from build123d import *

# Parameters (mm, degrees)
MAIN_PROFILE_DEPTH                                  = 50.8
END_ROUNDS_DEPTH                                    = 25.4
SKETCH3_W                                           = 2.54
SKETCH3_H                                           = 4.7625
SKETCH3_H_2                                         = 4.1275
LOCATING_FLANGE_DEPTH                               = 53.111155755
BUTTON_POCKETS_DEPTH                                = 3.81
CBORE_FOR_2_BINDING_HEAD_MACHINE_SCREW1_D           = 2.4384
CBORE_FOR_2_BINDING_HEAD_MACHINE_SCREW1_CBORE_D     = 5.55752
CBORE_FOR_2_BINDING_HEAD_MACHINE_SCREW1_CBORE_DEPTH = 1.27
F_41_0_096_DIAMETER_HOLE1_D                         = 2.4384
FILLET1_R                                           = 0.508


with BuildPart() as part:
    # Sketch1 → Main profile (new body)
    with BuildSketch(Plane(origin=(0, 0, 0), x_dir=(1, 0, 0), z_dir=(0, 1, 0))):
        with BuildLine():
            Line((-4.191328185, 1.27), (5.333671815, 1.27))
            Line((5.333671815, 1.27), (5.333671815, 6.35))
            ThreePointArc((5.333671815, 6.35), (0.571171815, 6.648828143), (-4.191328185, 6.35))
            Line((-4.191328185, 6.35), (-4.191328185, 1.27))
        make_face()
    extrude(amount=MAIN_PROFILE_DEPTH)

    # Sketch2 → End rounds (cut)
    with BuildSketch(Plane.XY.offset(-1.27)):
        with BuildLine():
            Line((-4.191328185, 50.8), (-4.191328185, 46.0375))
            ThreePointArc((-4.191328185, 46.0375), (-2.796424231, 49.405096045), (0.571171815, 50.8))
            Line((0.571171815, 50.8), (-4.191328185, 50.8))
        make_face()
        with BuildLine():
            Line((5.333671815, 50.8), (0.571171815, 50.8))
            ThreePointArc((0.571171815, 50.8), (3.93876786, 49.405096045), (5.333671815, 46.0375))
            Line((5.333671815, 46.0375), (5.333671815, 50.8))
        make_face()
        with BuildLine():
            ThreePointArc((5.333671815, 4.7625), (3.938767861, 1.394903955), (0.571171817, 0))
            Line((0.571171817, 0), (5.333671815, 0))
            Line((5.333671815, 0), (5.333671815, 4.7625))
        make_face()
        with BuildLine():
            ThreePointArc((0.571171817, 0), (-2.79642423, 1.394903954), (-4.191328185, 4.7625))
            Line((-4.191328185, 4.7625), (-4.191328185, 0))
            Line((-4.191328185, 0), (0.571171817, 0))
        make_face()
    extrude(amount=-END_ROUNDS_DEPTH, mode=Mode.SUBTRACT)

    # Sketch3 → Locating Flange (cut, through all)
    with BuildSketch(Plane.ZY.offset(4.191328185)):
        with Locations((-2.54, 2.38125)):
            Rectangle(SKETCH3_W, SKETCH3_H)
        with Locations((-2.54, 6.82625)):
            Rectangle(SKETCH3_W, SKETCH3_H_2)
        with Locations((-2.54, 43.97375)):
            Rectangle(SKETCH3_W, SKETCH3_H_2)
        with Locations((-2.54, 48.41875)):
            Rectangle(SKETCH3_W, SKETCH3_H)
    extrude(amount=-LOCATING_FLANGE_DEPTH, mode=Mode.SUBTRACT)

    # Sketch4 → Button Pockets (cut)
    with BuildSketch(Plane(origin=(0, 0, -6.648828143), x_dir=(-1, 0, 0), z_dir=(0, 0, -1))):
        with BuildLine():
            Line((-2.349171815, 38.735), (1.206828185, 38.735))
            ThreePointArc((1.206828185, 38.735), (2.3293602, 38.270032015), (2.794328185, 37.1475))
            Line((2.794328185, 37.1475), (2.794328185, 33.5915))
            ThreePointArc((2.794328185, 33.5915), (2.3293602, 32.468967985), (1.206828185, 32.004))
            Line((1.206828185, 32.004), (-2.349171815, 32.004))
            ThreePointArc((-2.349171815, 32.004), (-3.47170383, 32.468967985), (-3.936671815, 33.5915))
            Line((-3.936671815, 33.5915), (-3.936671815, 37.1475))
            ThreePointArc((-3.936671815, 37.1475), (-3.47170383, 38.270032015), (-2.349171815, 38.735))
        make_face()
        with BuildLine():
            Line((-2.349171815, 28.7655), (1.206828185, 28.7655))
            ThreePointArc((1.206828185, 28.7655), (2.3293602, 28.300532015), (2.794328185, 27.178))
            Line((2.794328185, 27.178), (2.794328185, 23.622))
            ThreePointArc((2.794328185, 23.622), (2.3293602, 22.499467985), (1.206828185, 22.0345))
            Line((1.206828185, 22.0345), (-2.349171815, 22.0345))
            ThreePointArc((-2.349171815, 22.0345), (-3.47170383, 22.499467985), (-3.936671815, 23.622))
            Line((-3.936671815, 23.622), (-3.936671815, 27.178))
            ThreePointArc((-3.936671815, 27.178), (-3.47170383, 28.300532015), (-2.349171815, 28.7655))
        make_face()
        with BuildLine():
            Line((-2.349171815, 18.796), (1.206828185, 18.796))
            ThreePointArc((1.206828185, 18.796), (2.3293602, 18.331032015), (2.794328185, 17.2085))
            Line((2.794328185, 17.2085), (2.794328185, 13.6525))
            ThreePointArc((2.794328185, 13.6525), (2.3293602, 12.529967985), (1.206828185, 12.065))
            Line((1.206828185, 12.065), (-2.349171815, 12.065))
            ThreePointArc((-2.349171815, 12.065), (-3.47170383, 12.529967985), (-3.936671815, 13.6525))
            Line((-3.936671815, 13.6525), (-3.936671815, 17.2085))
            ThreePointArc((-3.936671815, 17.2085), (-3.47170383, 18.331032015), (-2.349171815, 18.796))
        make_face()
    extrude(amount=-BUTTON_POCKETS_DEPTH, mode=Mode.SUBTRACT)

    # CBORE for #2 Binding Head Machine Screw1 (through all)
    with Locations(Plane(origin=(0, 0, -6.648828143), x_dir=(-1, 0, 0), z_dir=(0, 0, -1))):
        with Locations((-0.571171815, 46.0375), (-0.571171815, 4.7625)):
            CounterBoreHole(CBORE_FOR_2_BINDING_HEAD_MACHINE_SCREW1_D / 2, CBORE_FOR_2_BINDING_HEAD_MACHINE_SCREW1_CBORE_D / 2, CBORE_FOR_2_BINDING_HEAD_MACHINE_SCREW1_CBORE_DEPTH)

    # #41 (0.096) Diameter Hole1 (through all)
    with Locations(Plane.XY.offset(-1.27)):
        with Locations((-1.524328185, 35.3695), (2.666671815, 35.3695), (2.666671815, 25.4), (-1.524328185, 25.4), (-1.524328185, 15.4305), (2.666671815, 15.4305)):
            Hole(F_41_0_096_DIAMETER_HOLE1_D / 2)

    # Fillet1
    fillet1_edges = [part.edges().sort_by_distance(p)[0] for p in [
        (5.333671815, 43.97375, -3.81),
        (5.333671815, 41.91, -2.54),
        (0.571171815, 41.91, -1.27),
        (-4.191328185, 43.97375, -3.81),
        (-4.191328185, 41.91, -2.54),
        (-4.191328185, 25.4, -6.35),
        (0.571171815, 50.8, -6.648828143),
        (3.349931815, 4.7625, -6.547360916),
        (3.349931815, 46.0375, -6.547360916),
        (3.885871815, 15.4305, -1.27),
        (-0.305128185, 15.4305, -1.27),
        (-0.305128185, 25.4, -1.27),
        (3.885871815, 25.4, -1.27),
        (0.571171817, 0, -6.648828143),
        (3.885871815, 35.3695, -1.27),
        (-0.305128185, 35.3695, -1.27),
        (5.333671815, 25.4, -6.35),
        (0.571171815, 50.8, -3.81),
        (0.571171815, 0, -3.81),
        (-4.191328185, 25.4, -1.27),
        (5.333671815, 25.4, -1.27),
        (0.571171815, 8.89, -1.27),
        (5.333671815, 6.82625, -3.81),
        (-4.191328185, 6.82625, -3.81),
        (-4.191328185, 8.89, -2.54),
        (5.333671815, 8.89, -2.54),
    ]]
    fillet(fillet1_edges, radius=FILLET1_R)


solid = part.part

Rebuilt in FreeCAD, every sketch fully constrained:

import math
import FreeCAD as App
import Part
import Sketcher
Q = App.Units.Quantity


def edges_at(feature, points):
    """Names of the edges that pass closest to the given points."""
    edges = feature.Shape.Edges
    near = lambda p: min(range(len(edges)), key=lambda i: edges[i].distToShape(Part.Vertex(*p))[0])
    return sorted({f"Edge{near(p) + 1}" for p in points})

doc = App.newDocument("Part")
body = doc.addObject("PartDesign::Body", "Body")

sketch1 = doc.addObject("Sketcher::SketchObject", "Sketch")
body.addObject(sketch1)
sketch1.AttachmentSupport = (doc.XZ_Plane, [""])
sketch1.MapMode = "FlatFace"
sketch1.addGeometry([
    Part.LineSegment(App.Vector(-4, -1, 0), App.Vector(5, -1, 0)),
    Part.LineSegment(App.Vector(5, -1, 0), App.Vector(5, -6, 0)),
    Part.ArcOfCircle(Part.Circle(App.Vector(1, 31, 0), App.Vector(0, 0, 1), 38), math.radians(-97.18), math.radians(-82.82)),
    Part.LineSegment(App.Vector(-4, -6, 0), App.Vector(-4, -1, 0)),
], False)
sketch1.addConstraint([
    Sketcher.Constraint("Coincident", 0, 2, 1, 1),
    Sketcher.Constraint("Coincident", 1, 2, 2, 2),
    Sketcher.Constraint("Coincident", 2, 1, 3, 1),
    Sketcher.Constraint("Coincident", 3, 2, 0, 1),
    Sketcher.Constraint("Horizontal", 0),
    Sketcher.Constraint("Vertical", 1),
    Sketcher.Constraint("Vertical", 3),
    Sketcher.Constraint("Horizontal", 1, 2, 2, 1),
    Sketcher.Constraint("Radius", 2, Q("1.5 in")),
    Sketcher.Constraint("DistanceY", 1, 2, 1, 1, Q("0.2 in")),
    Sketcher.Constraint("DistanceX", 0, 1, 0, 2, Q("0.375 in")),
    Sketcher.Constraint("DistanceY", 0, 2, -1, 1, Q("0.05 in")),
    Sketcher.Constraint("DistanceX", -1, 1, 2, 3, 0.571172),
])
pad1 = doc.addObject("PartDesign::Pad", "Pad")
body.addObject(pad1)
pad1.Profile = sketch1
pad1.Length = Q("2 in")
pad1.Reversed = True

sketch2 = doc.addObject("Sketcher::SketchObject", "Sketch001")
body.addObject(sketch2)
sketch2.AttachmentSupport = (doc.XY_Plane, [""])
sketch2.MapMode = "FlatFace"
sketch2.AttachmentOffset = App.Placement(App.Vector(0, 0, -0.05 * 25.4), App.Rotation())
sketch2.addGeometry([
    Part.LineSegment(App.Vector(-4.2, 50.8, 0), App.Vector(-4.2, 46, 0)),
    Part.ArcOfCircle(Part.Circle(App.Vector(0.6, 46, 0), App.Vector(0, 0, 1), 4.8), math.radians(90), math.radians(180)),
    Part.LineSegment(App.Vector(0.6, 50.8, 0), App.Vector(-4.2, 50.8, 0)),
    Part.LineSegment(App.Vector(5.3, 50.8, 0), App.Vector(0.6, 50.8, 0)),
    Part.ArcOfCircle(Part.Circle(App.Vector(0.6, 46, 0), App.Vector(0, 0, 1), 4.8), math.radians(0), math.radians(90)),
    Part.LineSegment(App.Vector(5.3, 46, 0), App.Vector(5.3, 50.8, 0)),
    Part.ArcOfCircle(Part.Circle(App.Vector(0.6, 4.8, 0), App.Vector(0, 0, 1), 4.8), math.radians(-90), math.radians(0)),
    Part.LineSegment(App.Vector(0.6, 0, 0), App.Vector(5.3, 0, 0)),
    Part.LineSegment(App.Vector(5.3, 0, 0), App.Vector(5.3, 4.8, 0)),
    Part.ArcOfCircle(Part.Circle(App.Vector(0.6, 4.8, 0), App.Vector(0, 0, 1), 4.8), math.radians(180), math.radians(270)),
    Part.LineSegment(App.Vector(-4.2, 4.8, 0), App.Vector(-4.2, 0, 0)),
    Part.LineSegment(App.Vector(-4.2, 0, 0), App.Vector(0.6, 0, 0)),
], False)
sketch2.addConstraint([
    Sketcher.Constraint("Tangent", 0, 2, 1, 2),
    Sketcher.Constraint("Tangent", 1, 1, 2, 1),
    Sketcher.Constraint("Coincident", 2, 2, 0, 1),
    Sketcher.Constraint("Tangent", 3, 2, 4, 2),
    Sketcher.Constraint("Tangent", 4, 1, 5, 1),
    Sketcher.Constraint("Coincident", 5, 2, 3, 1),
    Sketcher.Constraint("Tangent", 6, 1, 7, 1),
    Sketcher.Constraint("Coincident", 7, 2, 8, 1),
    Sketcher.Constraint("Tangent", 8, 2, 6, 2),
    Sketcher.Constraint("Tangent", 9, 1, 10, 1),
    Sketcher.Constraint("Coincident", 10, 2, 11, 1),
    Sketcher.Constraint("Tangent", 11, 2, 9, 2),
    Sketcher.Constraint("Vertical", 0),
    Sketcher.Constraint("Horizontal", 2),
    Sketcher.Constraint("Horizontal", 3),
    Sketcher.Constraint("Vertical", 5),
    Sketcher.Constraint("Horizontal", 7),
    Sketcher.Constraint("Vertical", 8),
    Sketcher.Constraint("Vertical", 10),
    Sketcher.Constraint("Horizontal", 11),
    Sketcher.Constraint("Coincident", 4, 3, 1, 3),
    Sketcher.Constraint("Coincident", 9, 3, 6, 3),
    Sketcher.Constraint("Equal", 1, 4),
    Sketcher.Constraint("Equal", 4, 6),
    Sketcher.Constraint("Equal", 6, 9),
    Sketcher.Constraint("PointOnObject", 6, 1, -1),
    Sketcher.Constraint("Vertical", 4, 3, 6, 3),
    Sketcher.Constraint("DistanceY", -1, 1, 1, 1, Q("2 in")),
    Sketcher.Constraint("Radius", 1, Q("0.1875 in")),
    Sketcher.Constraint("DistanceX", -1, 1, 1, 3, 0.571172),
])
pocket1 = doc.addObject("PartDesign::Pocket", "Pocket")
body.addObject(pocket1)
pocket1.Profile = sketch2
pocket1.Length = Q("1 in")

sketch3 = doc.addObject("Sketcher::SketchObject", "Sketch002")
body.addObject(sketch3)
sketch3.AttachmentSupport = (doc.YZ_Plane, [""])
sketch3.MapMode = "FlatFace"
sketch3.AttachmentOffset = App.Placement(App.Vector(0, 0, -4.191328), App.Rotation())
sketch3.addGeometry([
    Part.LineSegment(App.Vector(0, -3.8, 0), App.Vector(0, -1.3, 0)),
    Part.LineSegment(App.Vector(0, -1.3, 0), App.Vector(8.9, -1.3, 0)),
    Part.LineSegment(App.Vector(8.9, -1.3, 0), App.Vector(8.9, -3.8, 0)),
    Part.LineSegment(App.Vector(8.9, -3.8, 0), App.Vector(0, -3.8, 0)),
    Part.LineSegment(App.Vector(41.9, -3.8, 0), App.Vector(41.9, -1.3, 0)),
    Part.LineSegment(App.Vector(41.9, -1.3, 0), App.Vector(50.8, -1.3, 0)),
    Part.LineSegment(App.Vector(50.8, -1.3, 0), App.Vector(50.8, -3.8, 0)),
    Part.LineSegment(App.Vector(50.8, -3.8, 0), App.Vector(41.9, -3.8, 0)),
], False)
sketch3.addConstraint([
    Sketcher.Constraint("Coincident", 0, 2, 1, 1),
    Sketcher.Constraint("Coincident", 1, 2, 2, 1),
    Sketcher.Constraint("Coincident", 2, 2, 3, 1),
    Sketcher.Constraint("Coincident", 3, 2, 0, 1),
    Sketcher.Constraint("Coincident", 4, 2, 5, 1),
    Sketcher.Constraint("Coincident", 5, 2, 6, 1),
    Sketcher.Constraint("Coincident", 6, 2, 7, 1),
    Sketcher.Constraint("Coincident", 7, 2, 4, 1),
    Sketcher.Constraint("Vertical", 0),
    Sketcher.Constraint("Horizontal", 1),
    Sketcher.Constraint("Vertical", 2),
    Sketcher.Constraint("Horizontal", 3),
    Sketcher.Constraint("Vertical", 4),
    Sketcher.Constraint("Horizontal", 5),
    Sketcher.Constraint("Vertical", 6),
    Sketcher.Constraint("Horizontal", 7),
    Sketcher.Constraint("PointOnObject", 0, 2, -2),
    Sketcher.Constraint("Horizontal", 1, 2, 4, 2),
    Sketcher.Constraint("Horizontal", 3, 2, 6, 2),
    Sketcher.Constraint("Equal", 3, 5),
    Sketcher.Constraint("DistanceY", 0, 1, 0, 2, Q("0.1 in")),
    Sketcher.Constraint("DistanceX", -1, 1, 5, 2, Q("2 in")),
    Sketcher.Constraint("DistanceX", 1, 1, 1, 2, Q("0.35 in")),
    Sketcher.Constraint("DistanceY", 0, 2, -1, 1, Q("0.05 in")),
])
pocket2 = doc.addObject("PartDesign::Pocket", "Pocket001")
body.addObject(pocket2)
pocket2.Profile = sketch3
pocket2.Type = "ThroughAll"
pocket2.Reversed = True

sketch4 = doc.addObject("Sketcher::SketchObject", "Sketch003")
body.addObject(sketch4)
sketch4.AttachmentSupport = (doc.XY_Plane, [""])
sketch4.MapMode = "FlatFace"
sketch4.AttachmentOffset = App.Placement(App.Vector(0, 0, -6.648828), App.Rotation())
sketch4.addGeometry([
    Part.LineSegment(App.Vector(-1.2, 38.7, 0), App.Vector(2.3, 38.7, 0)),
    Part.ArcOfCircle(Part.Circle(App.Vector(2.3, 37.1, 0), App.Vector(0, 0, 1), 1.6), math.radians(0), math.radians(90)),
    Part.LineSegment(App.Vector(3.9, 37.1, 0), App.Vector(3.9, 33.6, 0)),
    Part.ArcOfCircle(Part.Circle(App.Vector(2.3, 33.6, 0), App.Vector(0, 0, 1), 1.6), math.radians(-90), math.radians(0)),
    Part.LineSegment(App.Vector(2.3, 32, 0), App.Vector(-1.2, 32, 0)),
    Part.ArcOfCircle(Part.Circle(App.Vector(-1.2, 33.6, 0), App.Vector(0, 0, 1), 1.6), math.radians(180), math.radians(270)),
    Part.LineSegment(App.Vector(-2.8, 33.6, 0), App.Vector(-2.8, 37.1, 0)),
    Part.ArcOfCircle(Part.Circle(App.Vector(-1.2, 37.1, 0), App.Vector(0, 0, 1), 1.6), math.radians(90), math.radians(180)),
    Part.LineSegment(App.Vector(-1.2, 28.8, 0), App.Vector(2.3, 28.8, 0)),
    Part.ArcOfCircle(Part.Circle(App.Vector(2.3, 27.2, 0), App.Vector(0, 0, 1), 1.6), math.radians(0), math.radians(90)),
    Part.LineSegment(App.Vector(3.9, 27.2, 0), App.Vector(3.9, 23.6, 0)),
    Part.ArcOfCircle(Part.Circle(App.Vector(2.3, 23.6, 0), App.Vector(0, 0, 1), 1.6), math.radians(-90), math.radians(0)),
    Part.LineSegment(App.Vector(2.3, 22, 0), App.Vector(-1.2, 22, 0)),
    Part.ArcOfCircle(Part.Circle(App.Vector(-1.2, 23.6, 0), App.Vector(0, 0, 1), 1.6), math.radians(180), math.radians(270)),
    Part.LineSegment(App.Vector(-2.8, 23.6, 0), App.Vector(-2.8, 27.2, 0)),
    Part.ArcOfCircle(Part.Circle(App.Vector(-1.2, 27.2, 0), App.Vector(0, 0, 1), 1.6), math.radians(90), math.radians(180)),
    Part.LineSegment(App.Vector(-1.2, 18.8, 0), App.Vector(2.3, 18.8, 0)),
    Part.ArcOfCircle(Part.Circle(App.Vector(2.3, 17.2, 0), App.Vector(0, 0, 1), 1.6), math.radians(0), math.radians(90)),
    Part.LineSegment(App.Vector(3.9, 17.2, 0), App.Vector(3.9, 13.7, 0)),
    Part.ArcOfCircle(Part.Circle(App.Vector(2.3, 13.7, 0), App.Vector(0, 0, 1), 1.6), math.radians(-90), math.radians(0)),
    Part.LineSegment(App.Vector(2.3, 12.1, 0), App.Vector(-1.2, 12.1, 0)),
    Part.ArcOfCircle(Part.Circle(App.Vector(-1.2, 13.7, 0), App.Vector(0, 0, 1), 1.6), math.radians(180), math.radians(270)),
    Part.LineSegment(App.Vector(-2.8, 13.7, 0), App.Vector(-2.8, 17.2, 0)),
    Part.ArcOfCircle(Part.Circle(App.Vector(-1.2, 17.2, 0), App.Vector(0, 0, 1), 1.6), math.radians(90), math.radians(180)),
], False)
sketch4.addConstraint([
    Sketcher.Constraint("Tangent", 0, 2, 1, 2),
    Sketcher.Constraint("Tangent", 1, 1, 2, 1),
    Sketcher.Constraint("Tangent", 2, 2, 3, 2),
    Sketcher.Constraint("Tangent", 3, 1, 4, 1),
    Sketcher.Constraint("Tangent", 4, 2, 5, 2),
    Sketcher.Constraint("Tangent", 5, 1, 6, 1),
    Sketcher.Constraint("Tangent", 6, 2, 7, 2),
    Sketcher.Constraint("Tangent", 7, 1, 0, 1),
    Sketcher.Constraint("Tangent", 8, 2, 9, 2),
    Sketcher.Constraint("Tangent", 9, 1, 10, 1),
    Sketcher.Constraint("Tangent", 10, 2, 11, 2),
    Sketcher.Constraint("Tangent", 11, 1, 12, 1),
    Sketcher.Constraint("Tangent", 12, 2, 13, 2),
    Sketcher.Constraint("Tangent", 13, 1, 14, 1),
    Sketcher.Constraint("Tangent", 14, 2, 15, 2),
    Sketcher.Constraint("Tangent", 15, 1, 8, 1),
    Sketcher.Constraint("Tangent", 16, 2, 17, 2),
    Sketcher.Constraint("Tangent", 17, 1, 18, 1),
    Sketcher.Constraint("Tangent", 18, 2, 19, 2),
    Sketcher.Constraint("Tangent", 19, 1, 20, 1),
    Sketcher.Constraint("Tangent", 20, 2, 21, 2),
    Sketcher.Constraint("Tangent", 21, 1, 22, 1),
    Sketcher.Constraint("Tangent", 22, 2, 23, 2),
    Sketcher.Constraint("Tangent", 23, 1, 16, 1),
    Sketcher.Constraint("Horizontal", 0),
    Sketcher.Constraint("Vertical", 2),
    Sketcher.Constraint("Horizontal", 4),
    Sketcher.Constraint("Vertical", 6),
    Sketcher.Constraint("Horizontal", 8),
    Sketcher.Constraint("Vertical", 10),
    Sketcher.Constraint("Horizontal", 12),
    Sketcher.Constraint("Vertical", 14),
    Sketcher.Constraint("Horizontal", 16),
    Sketcher.Constraint("Vertical", 18),
    Sketcher.Constraint("Horizontal", 20),
    Sketcher.Constraint("Vertical", 22),
    Sketcher.Constraint("Equal", 1, 3),
    Sketcher.Constraint("Equal", 3, 5),
    Sketcher.Constraint("Equal", 5, 7),
    Sketcher.Constraint("Equal", 7, 9),
    Sketcher.Constraint("Equal", 9, 11),
    Sketcher.Constraint("Equal", 11, 13),
    Sketcher.Constraint("Equal", 13, 15),
    Sketcher.Constraint("Equal", 15, 17),
    Sketcher.Constraint("Equal", 17, 19),
    Sketcher.Constraint("Equal", 19, 21),
    Sketcher.Constraint("Equal", 21, 23),
    Sketcher.Constraint("Vertical", 3, 3, 9, 3),
    Sketcher.Constraint("Vertical", 7, 3, 13, 3),
    Sketcher.Constraint("Vertical", 11, 3, 17, 3),
    Sketcher.Constraint("Vertical", 15, 3, 21, 3),
    Sketcher.Constraint("Equal", 20, 2),
    Sketcher.Constraint("Equal", 6, 10),
    Sketcher.Constraint("Equal", 14, 18),
    Sketcher.Constraint("Radius", 1, Q("0.0625 in")),
    Sketcher.Constraint("DistanceX", 0, 1, 0, 2, Q("0.14 in")),
    Sketcher.Constraint("DistanceY", -1, 1, 9, 3, Q("1.07 in")),
    Sketcher.Constraint("DistanceY", -1, 1, 3, 1, Q("1.26 in")),
    Sketcher.Constraint("DistanceY", -1, 1, 16, 2, Q("0.74 in")),
    Sketcher.Constraint("DistanceX", -1, 1, 1, 3, 2.349172),
])
pocket3 = doc.addObject("PartDesign::Pocket", "Pocket002")
body.addObject(pocket3)
pocket3.Profile = sketch4
pocket3.Length = Q("0.15 in")
pocket3.Reversed = True

sketch5 = doc.addObject("Sketcher::SketchObject", "Sketch004")
body.addObject(sketch5)
sketch5.AttachmentSupport = (doc.XY_Plane, [""])
sketch5.MapMode = "FlatFace"
sketch5.AttachmentOffset = App.Placement(App.Vector(0, 0, -6.648828), App.Rotation())
sketch5.addGeometry([
    Part.Circle(App.Vector(0.6, 46, 0), App.Vector(0, 0, 1), 1.2),
    Part.Circle(App.Vector(0.6, 4.8, 0), App.Vector(0, 0, 1), 1.2),
], False)
sketch5.addConstraint([
    Sketcher.Constraint("Equal", 0, 1),
    Sketcher.Constraint("Vertical", 0, 3, 1, 3),
    Sketcher.Constraint("Diameter", 0, Q("0.096 in")),
    Sketcher.Constraint("DistanceY", -1, 1, 0, 3, Q("1.8125 in")),
    Sketcher.Constraint("DistanceY", -1, 1, 1, 3, Q("0.1875 in")),
    Sketcher.Constraint("DistanceX", -1, 1, 0, 3, 0.571172),
])
doc.recompute()
hole = doc.addObject("PartDesign::Hole", "Hole")
body.addObject(hole)
hole.Profile = sketch5
hole.ThreadType = "None"
hole.Diameter = Q("0.096 in")
hole.DepthType = "ThroughAll"
hole.HoleCutType = "Counterbore"
hole.HoleCutDiameter = Q("0.2188 in")
hole.HoleCutDepth = Q("0.05 in")
hole.Reversed = True

sketch6 = doc.addObject("Sketcher::SketchObject", "Sketch005")
body.addObject(sketch6)
sketch6.AttachmentSupport = (doc.XY_Plane, [""])
sketch6.MapMode = "FlatFace"
sketch6.AttachmentOffset = App.Placement(App.Vector(0, 0, -0.05 * 25.4), App.Rotation())
sketch6.addGeometry([
    Part.Circle(App.Vector(-1.5, 35.4, 0), App.Vector(0, 0, 1), 1.2),
    Part.Circle(App.Vector(2.7, 35.4, 0), App.Vector(0, 0, 1), 1.2),
    Part.Circle(App.Vector(2.7, 25.4, 0), App.Vector(0, 0, 1), 1.2),
    Part.Circle(App.Vector(-1.5, 25.4, 0), App.Vector(0, 0, 1), 1.2),
    Part.Circle(App.Vector(-1.5, 15.4, 0), App.Vector(0, 0, 1), 1.2),
    Part.Circle(App.Vector(2.7, 15.4, 0), App.Vector(0, 0, 1), 1.2),
], False)
sketch6.addConstraint([
    Sketcher.Constraint("Equal", 0, 1),
    Sketcher.Constraint("Equal", 1, 2),
    Sketcher.Constraint("Equal", 2, 3),
    Sketcher.Constraint("Equal", 3, 4),
    Sketcher.Constraint("Equal", 4, 5),
    Sketcher.Constraint("Horizontal", 0, 3, 1, 3),
    Sketcher.Constraint("Horizontal", 2, 3, 3, 3),
    Sketcher.Constraint("Horizontal", 4, 3, 5, 3),
    Sketcher.Constraint("Vertical", 1, 3, 2, 3),
    Sketcher.Constraint("Vertical", 0, 3, 3, 3),
    Sketcher.Constraint("Vertical", 3, 3, 4, 3),
    Sketcher.Constraint("Vertical", 2, 3, 5, 3),
    Sketcher.Constraint("Diameter", 0, Q("0.096 in")),
    Sketcher.Constraint("DistanceY", -1, 1, 2, 3, Q("1 in")),
    Sketcher.Constraint("DistanceX", 0, 3, 1, 3, Q("0.165 in")),
    Sketcher.Constraint("DistanceY", 4, 3, 0, 3, Q("0.785 in")),
    Sketcher.Constraint("DistanceY", -1, 1, 0, 3, Q("1.3925 in")),
    Sketcher.Constraint("DistanceX", 0, 3, -1, 1, 1.524328),
])
doc.recompute()
hole2 = doc.addObject("PartDesign::Hole", "Hole001")
body.addObject(hole2)
hole2.Profile = sketch6
hole2.ThreadType = "None"
hole2.Diameter = Q("0.096 in")
hole2.DepthType = "ThroughAll"
doc.recompute()

fillet = doc.addObject("PartDesign::Fillet", "Fillet")
body.addObject(fillet)
fillet.Base = (hole2, edges_at(hole2, [
    (5.334, 43.974, -3.81),
    (5.334, 41.91, -2.54),
    (0.571, 41.91, -1.27),
    (-4.191, 43.974, -3.81),
    (-4.191, 41.91, -2.54),
    (-4.191, 25.4, -6.35),
    (0.571, 50.8, -5.229),
    (3.35, 4.763, -6.547),
    (3.35, 46.038, -6.547),
    (3.886, 15.431, -1.27),
    (-0.305, 15.431, -1.27),
    (-0.305, 25.4, -1.27),
    (3.886, 25.4, -1.27),
    (3.939, 1.395, -6.5),
    (3.886, 35.37, -1.27),
    (-0.305, 35.37, -1.27),
    (5.334, 25.4, -6.35),
    (-2.796, 49.405, -3.81),
    (-2.796, 1.395, -3.81),
    (-4.191, 25.4, -1.27),
    (5.334, 25.4, -1.27),
    (0.571, 8.89, -1.27),
    (5.334, 6.826, -3.81),
    (-4.191, 6.826, -3.81),
    (-4.191, 8.89, -2.54),
    (5.334, 8.89, -2.54),
]))
fillet.Radius = Q("0.02 in")

doc.recompute()
